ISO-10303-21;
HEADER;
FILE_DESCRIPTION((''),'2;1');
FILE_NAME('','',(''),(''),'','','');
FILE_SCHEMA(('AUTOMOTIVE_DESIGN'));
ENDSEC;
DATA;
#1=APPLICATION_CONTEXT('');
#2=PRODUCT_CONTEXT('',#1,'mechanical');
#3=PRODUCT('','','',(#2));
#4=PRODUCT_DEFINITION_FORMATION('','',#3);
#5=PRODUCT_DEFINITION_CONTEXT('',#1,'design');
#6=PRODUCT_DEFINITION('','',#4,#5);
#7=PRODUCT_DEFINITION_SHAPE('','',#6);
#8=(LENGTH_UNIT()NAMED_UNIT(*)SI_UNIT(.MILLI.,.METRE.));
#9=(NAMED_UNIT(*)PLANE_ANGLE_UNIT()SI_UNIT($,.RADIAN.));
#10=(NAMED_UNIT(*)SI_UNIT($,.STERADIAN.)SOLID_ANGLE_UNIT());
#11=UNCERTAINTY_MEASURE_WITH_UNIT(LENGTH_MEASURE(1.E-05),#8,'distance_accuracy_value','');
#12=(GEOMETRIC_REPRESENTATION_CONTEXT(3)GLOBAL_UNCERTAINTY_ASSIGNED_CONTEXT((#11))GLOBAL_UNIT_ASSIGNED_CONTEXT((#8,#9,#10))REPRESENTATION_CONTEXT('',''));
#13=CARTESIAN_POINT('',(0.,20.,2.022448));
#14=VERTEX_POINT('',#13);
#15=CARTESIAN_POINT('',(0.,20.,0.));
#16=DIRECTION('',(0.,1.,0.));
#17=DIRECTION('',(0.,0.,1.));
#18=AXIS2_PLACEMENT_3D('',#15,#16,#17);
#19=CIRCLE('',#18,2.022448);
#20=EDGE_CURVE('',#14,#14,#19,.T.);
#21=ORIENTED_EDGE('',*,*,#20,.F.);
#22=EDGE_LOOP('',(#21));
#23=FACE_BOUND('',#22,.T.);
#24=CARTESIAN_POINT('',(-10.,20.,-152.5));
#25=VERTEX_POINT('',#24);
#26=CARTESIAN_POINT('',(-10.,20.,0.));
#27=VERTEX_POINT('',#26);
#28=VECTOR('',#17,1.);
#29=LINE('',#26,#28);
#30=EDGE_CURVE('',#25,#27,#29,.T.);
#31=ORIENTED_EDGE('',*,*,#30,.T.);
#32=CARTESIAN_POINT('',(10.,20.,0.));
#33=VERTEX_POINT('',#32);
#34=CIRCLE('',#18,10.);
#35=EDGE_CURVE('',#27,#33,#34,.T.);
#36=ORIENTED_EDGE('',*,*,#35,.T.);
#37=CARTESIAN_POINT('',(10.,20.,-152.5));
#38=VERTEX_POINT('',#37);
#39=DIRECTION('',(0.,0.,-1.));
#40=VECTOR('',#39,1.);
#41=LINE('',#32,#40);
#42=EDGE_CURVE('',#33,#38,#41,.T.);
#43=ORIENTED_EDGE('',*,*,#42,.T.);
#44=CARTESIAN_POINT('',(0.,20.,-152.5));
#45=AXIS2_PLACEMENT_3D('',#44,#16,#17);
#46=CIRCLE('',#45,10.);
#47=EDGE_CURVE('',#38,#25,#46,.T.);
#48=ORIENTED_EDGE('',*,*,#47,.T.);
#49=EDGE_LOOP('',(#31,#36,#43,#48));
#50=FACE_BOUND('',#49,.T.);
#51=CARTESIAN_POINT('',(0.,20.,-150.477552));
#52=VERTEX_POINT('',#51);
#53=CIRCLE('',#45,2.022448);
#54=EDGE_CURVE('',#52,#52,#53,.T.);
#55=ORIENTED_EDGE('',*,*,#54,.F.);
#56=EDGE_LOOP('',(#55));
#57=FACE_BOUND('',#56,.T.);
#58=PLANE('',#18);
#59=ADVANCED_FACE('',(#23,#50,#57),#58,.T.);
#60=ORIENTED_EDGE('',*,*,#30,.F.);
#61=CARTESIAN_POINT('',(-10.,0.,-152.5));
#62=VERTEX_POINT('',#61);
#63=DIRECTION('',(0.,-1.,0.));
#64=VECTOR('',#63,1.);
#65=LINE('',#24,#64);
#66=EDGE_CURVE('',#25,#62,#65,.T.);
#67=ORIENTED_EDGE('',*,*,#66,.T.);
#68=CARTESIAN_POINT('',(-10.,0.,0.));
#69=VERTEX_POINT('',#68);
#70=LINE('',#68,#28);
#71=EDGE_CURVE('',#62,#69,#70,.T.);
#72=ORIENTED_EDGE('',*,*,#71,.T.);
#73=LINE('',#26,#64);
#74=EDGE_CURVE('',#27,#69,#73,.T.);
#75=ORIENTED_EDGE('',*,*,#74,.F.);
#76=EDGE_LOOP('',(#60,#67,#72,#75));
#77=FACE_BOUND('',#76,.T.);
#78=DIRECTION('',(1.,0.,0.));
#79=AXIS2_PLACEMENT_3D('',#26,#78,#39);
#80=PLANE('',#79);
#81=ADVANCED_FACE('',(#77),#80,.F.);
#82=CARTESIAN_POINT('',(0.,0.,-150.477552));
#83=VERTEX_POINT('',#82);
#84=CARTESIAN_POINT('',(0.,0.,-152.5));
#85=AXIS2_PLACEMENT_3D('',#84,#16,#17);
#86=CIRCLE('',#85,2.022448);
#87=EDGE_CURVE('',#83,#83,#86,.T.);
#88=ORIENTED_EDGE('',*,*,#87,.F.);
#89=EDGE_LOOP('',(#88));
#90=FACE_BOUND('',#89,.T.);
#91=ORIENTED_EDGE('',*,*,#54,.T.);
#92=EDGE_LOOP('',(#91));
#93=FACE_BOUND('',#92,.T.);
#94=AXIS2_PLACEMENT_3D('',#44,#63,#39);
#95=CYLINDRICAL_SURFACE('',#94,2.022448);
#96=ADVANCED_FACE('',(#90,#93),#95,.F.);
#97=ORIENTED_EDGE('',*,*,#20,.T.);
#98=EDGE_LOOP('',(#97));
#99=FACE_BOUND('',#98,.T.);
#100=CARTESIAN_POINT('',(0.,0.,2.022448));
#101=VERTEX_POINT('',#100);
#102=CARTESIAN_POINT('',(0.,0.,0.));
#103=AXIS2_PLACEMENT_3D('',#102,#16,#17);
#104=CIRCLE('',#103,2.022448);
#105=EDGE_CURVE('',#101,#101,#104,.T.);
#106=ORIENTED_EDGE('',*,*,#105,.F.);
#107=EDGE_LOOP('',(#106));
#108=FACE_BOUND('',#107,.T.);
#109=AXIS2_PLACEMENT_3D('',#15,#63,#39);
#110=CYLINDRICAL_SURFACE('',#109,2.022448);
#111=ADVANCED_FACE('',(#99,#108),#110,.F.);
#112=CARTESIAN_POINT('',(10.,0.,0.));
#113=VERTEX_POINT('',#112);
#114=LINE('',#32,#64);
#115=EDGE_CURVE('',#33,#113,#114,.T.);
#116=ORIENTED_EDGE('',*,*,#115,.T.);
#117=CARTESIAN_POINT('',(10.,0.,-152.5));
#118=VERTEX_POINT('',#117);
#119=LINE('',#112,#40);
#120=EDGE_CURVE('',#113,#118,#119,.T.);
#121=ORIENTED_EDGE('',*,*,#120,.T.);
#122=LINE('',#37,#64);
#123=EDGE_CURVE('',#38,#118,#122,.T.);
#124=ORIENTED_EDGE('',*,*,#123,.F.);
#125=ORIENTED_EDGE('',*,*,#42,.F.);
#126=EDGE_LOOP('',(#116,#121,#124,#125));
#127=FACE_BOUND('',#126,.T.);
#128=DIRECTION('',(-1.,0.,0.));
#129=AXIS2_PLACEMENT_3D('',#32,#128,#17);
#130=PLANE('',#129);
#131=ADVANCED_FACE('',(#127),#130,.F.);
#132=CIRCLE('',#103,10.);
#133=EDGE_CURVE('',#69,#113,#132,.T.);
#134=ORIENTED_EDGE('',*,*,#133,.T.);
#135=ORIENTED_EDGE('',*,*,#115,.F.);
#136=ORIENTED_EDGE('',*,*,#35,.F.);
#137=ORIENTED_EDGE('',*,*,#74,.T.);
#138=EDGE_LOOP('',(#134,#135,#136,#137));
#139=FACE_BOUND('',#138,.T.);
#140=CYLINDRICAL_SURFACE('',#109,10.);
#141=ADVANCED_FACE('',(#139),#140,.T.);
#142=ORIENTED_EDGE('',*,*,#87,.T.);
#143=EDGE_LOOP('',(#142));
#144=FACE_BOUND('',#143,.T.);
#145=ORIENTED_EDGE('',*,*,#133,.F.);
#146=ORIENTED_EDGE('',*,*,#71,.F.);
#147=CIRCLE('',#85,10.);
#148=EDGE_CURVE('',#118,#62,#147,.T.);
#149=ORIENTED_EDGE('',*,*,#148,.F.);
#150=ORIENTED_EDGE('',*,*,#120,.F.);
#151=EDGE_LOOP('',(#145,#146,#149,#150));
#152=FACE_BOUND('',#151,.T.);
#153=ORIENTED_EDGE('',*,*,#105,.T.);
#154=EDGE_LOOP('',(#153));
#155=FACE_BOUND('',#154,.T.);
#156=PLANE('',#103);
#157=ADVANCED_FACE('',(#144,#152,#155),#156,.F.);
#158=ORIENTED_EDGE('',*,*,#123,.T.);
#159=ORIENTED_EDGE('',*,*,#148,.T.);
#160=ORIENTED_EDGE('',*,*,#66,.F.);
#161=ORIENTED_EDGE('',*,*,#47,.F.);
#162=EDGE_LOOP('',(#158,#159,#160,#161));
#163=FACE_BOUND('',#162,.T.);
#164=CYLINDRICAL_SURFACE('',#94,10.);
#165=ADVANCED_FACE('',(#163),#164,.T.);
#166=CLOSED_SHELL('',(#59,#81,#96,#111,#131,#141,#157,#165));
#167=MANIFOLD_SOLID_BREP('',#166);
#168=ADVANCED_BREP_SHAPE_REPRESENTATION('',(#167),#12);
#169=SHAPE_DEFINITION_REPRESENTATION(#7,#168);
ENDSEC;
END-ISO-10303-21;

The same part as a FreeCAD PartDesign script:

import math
import FreeCAD as App
import Part
import Sketcher
Q = App.Units.Quantity

doc = App.newDocument("Part")
body = doc.addObject("PartDesign::Body", "Body")

sketch1 = doc.addObject("Sketcher::SketchObject", "Sketch")
body.addObject(sketch1)
sketch1.AttachmentSupport = (doc.XZ_Plane, [""])
sketch1.MapMode = "FlatFace"
sketch1.addGeometry(Part.LineSegment(App.Vector(-10, -152.5, 0), App.Vector(-10, 0, 0)), False)
sketch1.addGeometry(Part.ArcOfCircle(Part.Circle(App.Vector(0, 0, 0), App.Vector(0, 0, 1), 10), math.radians(0), math.radians(180)), False)
sketch1.addGeometry(Part.LineSegment(App.Vector(10, 0, 0), App.Vector(10, -152.5, 0)), False)
sketch1.addGeometry(Part.ArcOfCircle(Part.Circle(App.Vector(0, -152.5, 0), App.Vector(0, 0, 1), 10), math.radians(180), math.radians(360)), False)
sketch1.addGeometry(Part.Circle(App.Vector(0, 0, 0), App.Vector(0, 0, 1), 2), False)
sketch1.addGeometry(Part.Circle(App.Vector(0, -152.5, 0), App.Vector(0, 0, 1), 2), False)
sketch1.addConstraint(Sketcher.Constraint("Tangent", 0, 2, 1, 2))
sketch1.addConstraint(Sketcher.Constraint("Tangent", 1, 1, 2, 1))
sketch1.addConstraint(Sketcher.Constraint("Tangent", 2, 2, 3, 2))
sketch1.addConstraint(Sketcher.Constraint("Tangent", 3, 1, 0, 1))
sketch1.addConstraint(Sketcher.Constraint("Vertical", 0))
sketch1.addConstraint(Sketcher.Constraint("Vertical", 2))
sketch1.addConstraint(Sketcher.Constraint("Coincident", 1, 3, -1, 1))
sketch1.addConstraint(Sketcher.Constraint("Coincident", 4, 3, -1, 1))
sketch1.addConstraint(Sketcher.Constraint("Coincident", 5, 3, 3, 3))
sketch1.addConstraint(Sketcher.Constraint("Equal", 4, 5))
sketch1.addConstraint(Sketcher.Constraint("Radius", 1, Q("10 mm")))
sketch1.addConstraint(Sketcher.Constraint("DistanceY", 0, 1, 0, 2, Q("152.5 mm")))
sketch1.addConstraint(Sketcher.Constraint("Diameter", 4, Q("4.044897 mm")))
pad1 = doc.addObject("PartDesign::Pad", "Pad")
body.addObject(pad1)
pad1.Profile = sketch1
pad1.Length = 20
pad1.Reversed = True

doc.recompute()
